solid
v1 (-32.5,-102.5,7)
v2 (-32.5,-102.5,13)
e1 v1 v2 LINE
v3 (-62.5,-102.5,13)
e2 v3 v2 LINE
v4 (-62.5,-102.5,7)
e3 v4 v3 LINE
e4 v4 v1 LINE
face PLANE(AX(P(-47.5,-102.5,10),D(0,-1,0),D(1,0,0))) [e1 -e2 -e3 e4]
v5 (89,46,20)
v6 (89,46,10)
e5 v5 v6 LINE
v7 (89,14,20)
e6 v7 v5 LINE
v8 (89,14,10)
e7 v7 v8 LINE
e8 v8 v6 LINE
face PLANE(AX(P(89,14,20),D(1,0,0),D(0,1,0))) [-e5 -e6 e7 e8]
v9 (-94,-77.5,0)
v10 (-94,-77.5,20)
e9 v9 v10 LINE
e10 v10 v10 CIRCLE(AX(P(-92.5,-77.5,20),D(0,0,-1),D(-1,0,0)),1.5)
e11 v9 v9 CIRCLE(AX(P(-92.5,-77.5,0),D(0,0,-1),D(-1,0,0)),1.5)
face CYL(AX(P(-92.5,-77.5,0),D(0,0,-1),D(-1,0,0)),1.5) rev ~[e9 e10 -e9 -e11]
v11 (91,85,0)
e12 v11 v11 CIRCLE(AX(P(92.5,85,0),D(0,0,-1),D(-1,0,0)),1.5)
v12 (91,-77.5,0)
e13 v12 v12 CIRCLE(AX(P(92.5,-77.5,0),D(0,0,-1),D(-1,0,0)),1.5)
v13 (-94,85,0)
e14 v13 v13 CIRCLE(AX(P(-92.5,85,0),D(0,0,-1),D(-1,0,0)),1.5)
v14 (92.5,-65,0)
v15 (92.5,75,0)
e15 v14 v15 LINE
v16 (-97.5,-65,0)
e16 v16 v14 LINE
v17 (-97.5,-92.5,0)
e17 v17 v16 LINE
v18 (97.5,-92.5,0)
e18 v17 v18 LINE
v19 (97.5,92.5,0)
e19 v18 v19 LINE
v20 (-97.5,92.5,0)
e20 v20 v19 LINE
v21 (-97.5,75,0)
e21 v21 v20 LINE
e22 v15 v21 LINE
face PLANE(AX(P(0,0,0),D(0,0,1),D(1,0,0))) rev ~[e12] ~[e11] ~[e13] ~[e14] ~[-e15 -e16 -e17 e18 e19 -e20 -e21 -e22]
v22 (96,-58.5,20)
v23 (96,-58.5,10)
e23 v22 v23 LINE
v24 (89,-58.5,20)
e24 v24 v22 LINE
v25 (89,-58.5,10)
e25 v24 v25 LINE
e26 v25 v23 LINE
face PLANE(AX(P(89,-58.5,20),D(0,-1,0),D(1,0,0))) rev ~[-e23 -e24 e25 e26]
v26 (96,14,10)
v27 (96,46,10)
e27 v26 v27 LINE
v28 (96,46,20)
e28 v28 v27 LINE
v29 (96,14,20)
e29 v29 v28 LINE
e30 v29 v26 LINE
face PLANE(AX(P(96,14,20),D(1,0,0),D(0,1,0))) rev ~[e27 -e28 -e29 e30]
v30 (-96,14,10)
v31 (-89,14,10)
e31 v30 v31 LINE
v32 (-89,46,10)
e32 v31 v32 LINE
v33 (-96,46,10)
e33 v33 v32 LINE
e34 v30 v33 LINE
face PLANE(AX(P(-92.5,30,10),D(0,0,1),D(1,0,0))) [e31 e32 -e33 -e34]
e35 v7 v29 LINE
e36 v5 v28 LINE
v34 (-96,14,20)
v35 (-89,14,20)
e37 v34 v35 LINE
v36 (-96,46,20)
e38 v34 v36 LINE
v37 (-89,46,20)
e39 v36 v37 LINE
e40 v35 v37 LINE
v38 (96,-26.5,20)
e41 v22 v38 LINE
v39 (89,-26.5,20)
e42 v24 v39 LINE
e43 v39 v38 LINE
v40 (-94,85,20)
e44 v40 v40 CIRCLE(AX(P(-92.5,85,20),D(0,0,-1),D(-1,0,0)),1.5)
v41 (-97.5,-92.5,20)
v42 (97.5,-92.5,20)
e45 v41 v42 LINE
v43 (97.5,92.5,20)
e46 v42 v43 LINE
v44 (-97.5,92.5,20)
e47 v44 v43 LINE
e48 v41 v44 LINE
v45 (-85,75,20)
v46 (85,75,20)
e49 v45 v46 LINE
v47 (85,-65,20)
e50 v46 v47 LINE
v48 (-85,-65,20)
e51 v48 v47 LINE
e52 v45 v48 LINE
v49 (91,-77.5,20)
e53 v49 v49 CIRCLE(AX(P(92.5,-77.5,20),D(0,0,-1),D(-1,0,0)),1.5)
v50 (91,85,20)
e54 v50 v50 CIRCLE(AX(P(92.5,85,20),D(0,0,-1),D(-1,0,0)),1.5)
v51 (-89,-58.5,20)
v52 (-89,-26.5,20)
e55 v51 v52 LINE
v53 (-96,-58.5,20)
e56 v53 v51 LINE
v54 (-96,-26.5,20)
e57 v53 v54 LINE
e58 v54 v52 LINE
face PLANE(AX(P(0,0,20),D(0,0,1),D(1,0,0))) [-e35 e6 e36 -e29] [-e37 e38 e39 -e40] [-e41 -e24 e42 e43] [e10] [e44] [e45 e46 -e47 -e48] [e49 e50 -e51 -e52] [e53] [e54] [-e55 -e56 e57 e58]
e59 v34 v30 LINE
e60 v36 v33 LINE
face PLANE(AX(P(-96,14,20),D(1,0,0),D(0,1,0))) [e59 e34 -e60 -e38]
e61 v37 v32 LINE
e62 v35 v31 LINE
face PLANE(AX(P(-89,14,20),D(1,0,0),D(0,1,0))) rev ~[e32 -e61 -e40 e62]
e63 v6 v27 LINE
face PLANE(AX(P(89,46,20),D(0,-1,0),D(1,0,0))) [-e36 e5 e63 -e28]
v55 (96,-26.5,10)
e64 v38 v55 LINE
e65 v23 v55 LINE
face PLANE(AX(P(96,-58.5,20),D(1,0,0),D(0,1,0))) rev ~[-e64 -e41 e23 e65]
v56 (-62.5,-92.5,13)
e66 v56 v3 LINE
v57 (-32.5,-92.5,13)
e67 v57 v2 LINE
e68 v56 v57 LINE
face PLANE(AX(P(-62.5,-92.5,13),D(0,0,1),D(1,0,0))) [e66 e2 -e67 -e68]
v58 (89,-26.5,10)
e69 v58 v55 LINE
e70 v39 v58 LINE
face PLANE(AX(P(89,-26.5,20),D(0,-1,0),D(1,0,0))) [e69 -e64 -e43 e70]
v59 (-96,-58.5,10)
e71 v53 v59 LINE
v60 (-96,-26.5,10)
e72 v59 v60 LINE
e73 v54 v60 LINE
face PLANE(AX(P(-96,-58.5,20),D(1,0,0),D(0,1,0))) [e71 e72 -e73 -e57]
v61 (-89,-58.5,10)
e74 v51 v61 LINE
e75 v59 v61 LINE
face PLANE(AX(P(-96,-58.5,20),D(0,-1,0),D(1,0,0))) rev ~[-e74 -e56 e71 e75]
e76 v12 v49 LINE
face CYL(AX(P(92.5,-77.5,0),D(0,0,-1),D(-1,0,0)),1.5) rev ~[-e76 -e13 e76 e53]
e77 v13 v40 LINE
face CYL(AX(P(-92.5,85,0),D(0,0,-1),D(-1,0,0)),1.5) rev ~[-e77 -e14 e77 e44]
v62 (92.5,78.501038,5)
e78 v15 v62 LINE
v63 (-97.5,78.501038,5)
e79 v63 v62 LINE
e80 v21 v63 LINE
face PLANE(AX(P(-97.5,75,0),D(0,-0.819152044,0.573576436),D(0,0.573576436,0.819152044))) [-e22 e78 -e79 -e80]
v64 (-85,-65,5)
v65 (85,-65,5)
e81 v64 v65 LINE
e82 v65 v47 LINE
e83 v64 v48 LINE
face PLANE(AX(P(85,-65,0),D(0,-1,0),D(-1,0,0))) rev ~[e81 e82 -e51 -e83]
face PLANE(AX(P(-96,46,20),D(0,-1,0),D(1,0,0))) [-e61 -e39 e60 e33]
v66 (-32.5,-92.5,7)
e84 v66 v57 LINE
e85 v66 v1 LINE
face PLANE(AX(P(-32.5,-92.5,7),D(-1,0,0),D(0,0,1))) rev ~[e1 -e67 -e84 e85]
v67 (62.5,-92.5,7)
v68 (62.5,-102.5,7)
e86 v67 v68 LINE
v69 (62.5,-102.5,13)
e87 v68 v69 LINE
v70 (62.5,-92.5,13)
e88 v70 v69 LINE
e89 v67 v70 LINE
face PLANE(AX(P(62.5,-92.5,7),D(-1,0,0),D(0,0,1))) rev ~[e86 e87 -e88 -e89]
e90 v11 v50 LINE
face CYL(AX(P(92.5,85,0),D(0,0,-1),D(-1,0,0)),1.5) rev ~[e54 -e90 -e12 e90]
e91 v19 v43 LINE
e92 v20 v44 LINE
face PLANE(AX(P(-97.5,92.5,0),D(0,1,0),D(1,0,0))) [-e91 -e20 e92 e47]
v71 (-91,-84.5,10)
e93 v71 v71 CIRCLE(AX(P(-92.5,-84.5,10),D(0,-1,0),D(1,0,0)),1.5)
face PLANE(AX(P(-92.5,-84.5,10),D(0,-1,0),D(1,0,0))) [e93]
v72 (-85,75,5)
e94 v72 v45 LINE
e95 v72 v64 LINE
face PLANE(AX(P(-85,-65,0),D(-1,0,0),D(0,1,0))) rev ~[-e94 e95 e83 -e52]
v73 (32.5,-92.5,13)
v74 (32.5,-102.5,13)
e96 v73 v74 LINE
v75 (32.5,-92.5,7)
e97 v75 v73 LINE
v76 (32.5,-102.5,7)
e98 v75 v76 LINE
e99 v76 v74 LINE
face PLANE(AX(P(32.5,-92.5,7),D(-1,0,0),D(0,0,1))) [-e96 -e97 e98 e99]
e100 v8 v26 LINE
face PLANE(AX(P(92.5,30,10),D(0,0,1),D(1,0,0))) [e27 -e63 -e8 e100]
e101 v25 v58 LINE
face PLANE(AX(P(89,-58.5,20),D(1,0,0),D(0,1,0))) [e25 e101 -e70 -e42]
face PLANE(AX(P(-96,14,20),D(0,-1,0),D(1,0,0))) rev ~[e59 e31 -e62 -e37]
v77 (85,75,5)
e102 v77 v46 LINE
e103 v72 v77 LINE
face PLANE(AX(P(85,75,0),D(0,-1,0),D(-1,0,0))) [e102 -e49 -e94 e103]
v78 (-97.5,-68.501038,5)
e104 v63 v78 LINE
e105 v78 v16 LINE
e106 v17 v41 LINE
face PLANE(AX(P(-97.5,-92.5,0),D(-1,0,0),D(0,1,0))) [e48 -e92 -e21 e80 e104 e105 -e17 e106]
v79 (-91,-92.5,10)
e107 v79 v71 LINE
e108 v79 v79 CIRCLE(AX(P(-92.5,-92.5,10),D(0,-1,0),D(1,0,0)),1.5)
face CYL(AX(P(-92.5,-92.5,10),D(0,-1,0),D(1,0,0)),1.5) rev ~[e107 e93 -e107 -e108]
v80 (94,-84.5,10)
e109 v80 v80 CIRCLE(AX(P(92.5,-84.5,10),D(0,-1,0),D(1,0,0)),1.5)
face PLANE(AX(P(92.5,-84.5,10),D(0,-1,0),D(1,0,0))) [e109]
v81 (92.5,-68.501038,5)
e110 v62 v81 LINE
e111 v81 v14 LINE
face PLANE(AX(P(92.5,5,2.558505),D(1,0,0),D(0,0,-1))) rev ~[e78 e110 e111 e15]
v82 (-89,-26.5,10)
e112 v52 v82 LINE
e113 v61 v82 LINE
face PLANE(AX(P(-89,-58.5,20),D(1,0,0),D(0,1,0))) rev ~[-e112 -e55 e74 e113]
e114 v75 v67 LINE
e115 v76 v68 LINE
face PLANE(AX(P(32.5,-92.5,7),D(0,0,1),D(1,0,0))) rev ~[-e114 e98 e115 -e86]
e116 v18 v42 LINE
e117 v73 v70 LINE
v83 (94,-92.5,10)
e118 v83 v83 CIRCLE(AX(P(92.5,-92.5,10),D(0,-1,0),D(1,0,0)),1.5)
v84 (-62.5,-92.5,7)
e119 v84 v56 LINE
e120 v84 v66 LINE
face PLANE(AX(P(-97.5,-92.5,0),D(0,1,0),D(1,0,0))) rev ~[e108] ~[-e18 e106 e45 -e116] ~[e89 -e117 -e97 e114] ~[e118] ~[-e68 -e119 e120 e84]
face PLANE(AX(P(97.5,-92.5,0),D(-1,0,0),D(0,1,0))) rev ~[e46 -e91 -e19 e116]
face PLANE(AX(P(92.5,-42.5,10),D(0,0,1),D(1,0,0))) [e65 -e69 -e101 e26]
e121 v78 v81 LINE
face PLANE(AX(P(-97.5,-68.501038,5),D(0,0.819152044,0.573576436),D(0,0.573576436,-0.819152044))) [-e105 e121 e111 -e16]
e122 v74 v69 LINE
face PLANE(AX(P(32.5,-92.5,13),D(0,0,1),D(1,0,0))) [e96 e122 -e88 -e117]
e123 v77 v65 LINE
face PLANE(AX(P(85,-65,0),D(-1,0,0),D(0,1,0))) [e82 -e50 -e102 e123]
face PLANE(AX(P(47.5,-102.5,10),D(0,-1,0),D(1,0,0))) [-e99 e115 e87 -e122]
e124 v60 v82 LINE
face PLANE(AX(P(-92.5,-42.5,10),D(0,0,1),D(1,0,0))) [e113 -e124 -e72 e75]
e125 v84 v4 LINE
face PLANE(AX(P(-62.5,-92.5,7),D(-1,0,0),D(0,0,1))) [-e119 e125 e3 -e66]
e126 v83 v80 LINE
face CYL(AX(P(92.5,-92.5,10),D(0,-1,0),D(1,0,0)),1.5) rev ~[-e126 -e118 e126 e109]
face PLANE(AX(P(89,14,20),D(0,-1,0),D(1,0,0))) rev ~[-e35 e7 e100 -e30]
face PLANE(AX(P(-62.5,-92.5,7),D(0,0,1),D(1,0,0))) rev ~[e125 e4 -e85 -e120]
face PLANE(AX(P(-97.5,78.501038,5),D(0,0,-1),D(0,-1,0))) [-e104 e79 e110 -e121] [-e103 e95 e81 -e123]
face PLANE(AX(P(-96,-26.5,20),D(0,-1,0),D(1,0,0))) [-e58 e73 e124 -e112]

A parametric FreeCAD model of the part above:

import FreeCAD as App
import Part
import Sketcher

V = App.Vector
Q = App.Units.Quantity


def add_polygon(sketch, points):
    """Adds a closed chain of lines whose ends are joined by coincident constraints."""
    first, n = sketch.GeometryCount, len(points)
    for a, b in zip(points, points[1:] + points[:1]):
        sketch.addGeometry(Part.LineSegment(App.Vector(*a, 0), App.Vector(*b, 0)), False)
    for i in range(n):
        sketch.addConstraint(Sketcher.Constraint("Coincident", first + i, 2, first + (i + 1) % n, 1))

doc = App.newDocument("Part")
body = doc.addObject("PartDesign::Body", "Body")

sketch1 = body.newObject("Sketcher::SketchObject", "Sketch")
sketch1.AttachmentSupport = (doc.getObject("XY_Plane"), [""])
sketch1.MapMode = "FlatFace"
add_polygon(sketch1, [(-97.5, 92.5), (-97.5, -92.5), (97.5, -92.5), (97.5, 92.5)])
sketch1.addConstraint(Sketcher.Constraint("Vertical", 0))
sketch1.addConstraint(Sketcher.Constraint("Horizontal", 1))
sketch1.addConstraint(Sketcher.Constraint("Vertical", 2))
sketch1.addConstraint(Sketcher.Constraint("Horizontal", 3))
sketch1.addConstraint(Sketcher.Constraint("Symmetric", 0, 2, 2, 2, -1, 1))
sketch1.addConstraint(Sketcher.Constraint("DistanceX", 1, 1, 1, 2, 195.0))
sketch1.addConstraint(Sketcher.Constraint("DistanceY", 0, 2, 0, 1, 185.0))
pad1 = body.newObject("PartDesign::Pad", "Pad")
pad1.Profile = sketch1
pad1.Length = 20

sketch2 = body.newObject("Sketcher::SketchObject", "Sketch001")
sketch2.AttachmentSupport = (doc.getObject("XZ_Plane"), [""])
sketch2.MapMode = "FlatFace"
sketch2.AttachmentOffset = App.Placement(V(0, 0, 92.5), App.Rotation())
add_polygon(sketch2, [(-62.5, 13), (-62.5, 7), (-32.5, 7), (-32.5, 13)])
add_polygon(sketch2, [(32.5, 13), (32.5, 7), (62.5, 7), (62.5, 13)])
sketch2.addConstraint(Sketcher.Constraint("Vertical", 0))
sketch2.addConstraint(Sketcher.Constraint("Horizontal", 1))
sketch2.addConstraint(Sketcher.Constraint("Vertical", 2))
sketch2.addConstraint(Sketcher.Constraint("Horizontal", 3))
sketch2.addConstraint(Sketcher.Constraint("Vertical", 4))
sketch2.addConstraint(Sketcher.Constraint("Horizontal", 5))
sketch2.addConstraint(Sketcher.Constraint("Vertical", 6))
sketch2.addConstraint(Sketcher.Constraint("Horizontal", 7))
sketch2.addConstraint(Sketcher.Constraint("Symmetric", 1, 2, 4, 2, -2))
sketch2.addConstraint(Sketcher.Constraint("Symmetric", 3, 2, 6, 2, -2))
sketch2.addConstraint(Sketcher.Constraint("DistanceX", 1, 1, 1, 2, 30.0))
sketch2.addConstraint(Sketcher.Constraint("DistanceY", 0, 2, 0, 1, 6.0))
sketch2.addConstraint(Sketcher.Constraint("DistanceY", -1, 1, 0, 2, 7.0))
sketch2.addConstraint(Sketcher.Constraint("DistanceX", 1, 2, 4, 2, 65.0))
pad2 = body.newObject("PartDesign::Pad", "Pad001")
pad2.Profile = sketch2
pad2.Length = 10

sketch3 = body.newObject("Sketcher::SketchObject", "Sketch002")
sketch3.AttachmentSupport = (doc.getObject("XY_Plane"), [""])
sketch3.MapMode = "FlatFace"
sketch3.AttachmentOffset = App.Placement(V(0, 0, 20), App.Rotation())
add_polygon(sketch3, [(-96, 46), (-96, 14), (-89, 14), (-89, 46)])
add_polygon(sketch3, [(-96, -26.5), (-96, -58.5), (-89, -58.5), (-89, -26.5)])
add_polygon(sketch3, [(89, -26.5), (89, -58.5), (96, -58.5), (96, -26.5)])
add_polygon(sketch3, [(89, 46), (89, 14), (96, 14), (96, 46)])
sketch3.addConstraint(Sketcher.Constraint("Vertical", 0))
sketch3.addConstraint(Sketcher.Constraint("Horizontal", 1))
sketch3.addConstraint(Sketcher.Constraint("Vertical", 2))
sketch3.addConstraint(Sketcher.Constraint("Horizontal", 3))
sketch3.addConstraint(Sketcher.Constraint("Vertical", 4))
sketch3.addConstraint(Sketcher.Constraint("Horizontal", 5))
sketch3.addConstraint(Sketcher.Constraint("Vertical", 6))
sketch3.addConstraint(Sketcher.Constraint("Horizontal", 7))
sketch3.addConstraint(Sketcher.Constraint("Vertical", 8))
sketch3.addConstraint(Sketcher.Constraint("Horizontal", 9))
sketch3.addConstraint(Sketcher.Constraint("Vertical", 10))
sketch3.addConstraint(Sketcher.Constraint("Horizontal", 11))
sketch3.addConstraint(Sketcher.Constraint("Vertical", 12))
sketch3.addConstraint(Sketcher.Constraint("Horizontal", 13))
sketch3.addConstraint(Sketcher.Constraint("Vertical", 14))
sketch3.addConstraint(Sketcher.Constraint("Horizontal", 15))
sketch3.addConstraint(Sketcher.Constraint("Symmetric", 5, 2, 8, 2, -2))
sketch3.addConstraint(Sketcher.Constraint("Symmetric", 7, 2, 10, 2, -2))
sketch3.addConstraint(Sketcher.Constraint("Symmetric", 1, 2, 12, 2, -2))
sketch3.addConstraint(Sketcher.Constraint("Symmetric", 3, 2, 14, 2, -2))
sketch3.addConstraint(Sketcher.Constraint("Vertical", 3, 2, 4, 2))
sketch3.addConstraint(Sketcher.Constraint("Vertical", 2, 2, 5, 2))
sketch3.addConstraint(Sketcher.Constraint("Equal", 2, 4))
sketch3.addConstraint(Sketcher.Constraint("DistanceX", 1, 1, 1, 2, 7.0))
sketch3.addConstraint(Sketcher.Constraint("DistanceY", 0, 2, 0, 1, 32.0))
sketch3.addConstraint(Sketcher.Constraint("DistanceX", 0, 2, -1, 1, 96.0))
sketch3.addConstraint(Sketcher.Constraint("DistanceY", -1, 1, 0, 2, 14.0))
sketch3.addConstraint(Sketcher.Constraint("DistanceY", 4, 2, -1, 1, 58.5))
pocket1 = body.newObject("PartDesign::Pocket", "Pocket")
pocket1.Profile = sketch3
pocket1.Length = 10

sketch4 = body.newObject("Sketcher::SketchObject", "Sketch003")
sketch4.AttachmentSupport = (doc.getObject("XZ_Plane"), [""])
sketch4.MapMode = "FlatFace"
sketch4.AttachmentOffset = App.Placement(V(0, 0, 92.5), App.Rotation())
sketch4.addGeometry(Part.Circle(V(-92.5, 10, 0), V(0, 0, 1), 1.5), False)
sketch4.addGeometry(Part.Circle(V(92.5, 10, 0), V(0, 0, 1), 1.5), False)
sketch4.addConstraint(Sketcher.Constraint("Equal", 0, 1))
sketch4.addConstraint(Sketcher.Constraint("Symmetric", 0, 3, 1, 3, -2))
sketch4.addConstraint(Sketcher.Constraint("Diameter", 0, 3.0))
sketch4.addConstraint(Sketcher.Constraint("DistanceY", -1, 1, 0, 3, 10.0))
sketch4.addConstraint(Sketcher.Constraint("DistanceX", 0, 3, 1, 3, 185.0))
pocket2 = body.newObject("PartDesign::Pocket", "Pocket001")
pocket2.Profile = sketch4
pocket2.Length = 8

sketch5 = body.newObject("Sketcher::SketchObject", "Sketch004")
sketch5.AttachmentSupport = (doc.getObject("XY_Plane"), [""])
sketch5.MapMode = "FlatFace"
sketch5.addGeometry(Part.Circle(V(92.5, 85, 0), V(0, 0, 1), 1.5), False)
sketch5.addGeometry(Part.Circle(V(-92.5, 85, 0), V(0, 0, 1), 1.5), False)
sketch5.addGeometry(Part.Circle(V(92.5, -77.5, 0), V(0, 0, 1), 1.5), False)
sketch5.addGeometry(Part.Circle(V(-92.5, -77.5, 0), V(0, 0, 1), 1.5), False)
sketch5.addConstraint(Sketcher.Constraint("Equal", 0, 1))
sketch5.addConstraint(Sketcher.Constraint("Equal", 1, 2))
sketch5.addConstraint(Sketcher.Constraint("Equal", 2, 3))
sketch5.addConstraint(Sketcher.Constraint("Symmetric", 0, 3, 1, 3, -2))
sketch5.addConstraint(Sketcher.Constraint("Symmetric", 2, 3, 3, 3, -2))
sketch5.addConstraint(Sketcher.Constraint("Vertical", 0, 3, 2, 3))
sketch5.addConstraint(Sketcher.Constraint("Diameter", 0, 3.0))
sketch5.addConstraint(Sketcher.Constraint("DistanceY", -1, 1, 0, 3, 85.0))
sketch5.addConstraint(Sketcher.Constraint("DistanceX", 1, 3, 0, 3, 185.0))
sketch5.addConstraint(Sketcher.Constraint("DistanceY", 2, 3, -1, 1, 77.5))
pocket3 = body.newObject("PartDesign::Pocket", "Pocket002")
pocket3.Profile = sketch5
pocket3.Type = "ThroughAll"
pocket3.Reversed = True

sketch6 = body.newObject("Sketcher::SketchObject", "Sketch005")
sketch6.AttachmentSupport = (doc.getObject("XY_Plane"), [""])
sketch6.MapMode = "FlatFace"
add_polygon(sketch6, [(85, 75), (85, -65), (-85, -65), (-85, 75)])
sketch6.addConstraint(Sketcher.Constraint("Vertical", 0))
sketch6.addConstraint(Sketcher.Constraint("Horizontal", 1))
sketch6.addConstraint(Sketcher.Constraint("Vertical", 2))
sketch6.addConstraint(Sketcher.Constraint("Horizontal", 3))
sketch6.addConstraint(Sketcher.Constraint("DistanceX", 1, 2, 1, 1, 170.0))
sketch6.addConstraint(Sketcher.Constraint("DistanceY", 0, 2, 0, 1, 140.0))
sketch6.addConstraint(Sketcher.Constraint("DistanceX", -1, 1, 0, 2, 85.0))
sketch6.addConstraint(Sketcher.Constraint("DistanceY", 0, 2, -1, 1, 65.0))
pocket4 = body.newObject("PartDesign::Pocket", "Pocket003")
pocket4.Profile = sketch6
pocket4.Type = "ThroughAll"
pocket4.Reversed = True

sketch7 = body.newObject("Sketcher::SketchObject", "Sketch006")
sketch7.AttachmentSupport = (doc.getObject("YZ_Plane"), [""])
sketch7.MapMode = "FlatFace"
sketch7.AttachmentOffset = App.Placement(V(0, 0, -97.5), App.Rotation())
add_polygon(sketch7, [(75, 0), (-65, 0), (-68.501038, 5), (78.501038, 5)])
sketch7.addConstraint(Sketcher.Constraint("Horizontal", 0))
sketch7.addConstraint(Sketcher.Constraint("Horizontal", 2))
sketch7.addConstraint(Sketcher.Constraint("PointOnObject", 0, 2, -1))
sketch7.addConstraint(Sketcher.Constraint("Equal", 1, 3))
sketch7.addConstraint(Sketcher.Constraint("DistanceX", 0, 2, 0, 1, 140.0))
sketch7.addConstraint(Sketcher.Constraint("Angle", 1, Q("125 deg")))
sketch7.addConstraint(Sketcher.Constraint("DistanceX", 0, 2, -1, 1, 65.0))
sketch7.addConstraint(Sketcher.Constraint("DistanceY", -1, 1, 1, 2, 5.0))
pocket5 = body.newObject("PartDesign::Pocket", "Pocket004")
pocket5.Profile = sketch7
pocket5.Length = 190
pocket5.Reversed = True

doc.recompute()
